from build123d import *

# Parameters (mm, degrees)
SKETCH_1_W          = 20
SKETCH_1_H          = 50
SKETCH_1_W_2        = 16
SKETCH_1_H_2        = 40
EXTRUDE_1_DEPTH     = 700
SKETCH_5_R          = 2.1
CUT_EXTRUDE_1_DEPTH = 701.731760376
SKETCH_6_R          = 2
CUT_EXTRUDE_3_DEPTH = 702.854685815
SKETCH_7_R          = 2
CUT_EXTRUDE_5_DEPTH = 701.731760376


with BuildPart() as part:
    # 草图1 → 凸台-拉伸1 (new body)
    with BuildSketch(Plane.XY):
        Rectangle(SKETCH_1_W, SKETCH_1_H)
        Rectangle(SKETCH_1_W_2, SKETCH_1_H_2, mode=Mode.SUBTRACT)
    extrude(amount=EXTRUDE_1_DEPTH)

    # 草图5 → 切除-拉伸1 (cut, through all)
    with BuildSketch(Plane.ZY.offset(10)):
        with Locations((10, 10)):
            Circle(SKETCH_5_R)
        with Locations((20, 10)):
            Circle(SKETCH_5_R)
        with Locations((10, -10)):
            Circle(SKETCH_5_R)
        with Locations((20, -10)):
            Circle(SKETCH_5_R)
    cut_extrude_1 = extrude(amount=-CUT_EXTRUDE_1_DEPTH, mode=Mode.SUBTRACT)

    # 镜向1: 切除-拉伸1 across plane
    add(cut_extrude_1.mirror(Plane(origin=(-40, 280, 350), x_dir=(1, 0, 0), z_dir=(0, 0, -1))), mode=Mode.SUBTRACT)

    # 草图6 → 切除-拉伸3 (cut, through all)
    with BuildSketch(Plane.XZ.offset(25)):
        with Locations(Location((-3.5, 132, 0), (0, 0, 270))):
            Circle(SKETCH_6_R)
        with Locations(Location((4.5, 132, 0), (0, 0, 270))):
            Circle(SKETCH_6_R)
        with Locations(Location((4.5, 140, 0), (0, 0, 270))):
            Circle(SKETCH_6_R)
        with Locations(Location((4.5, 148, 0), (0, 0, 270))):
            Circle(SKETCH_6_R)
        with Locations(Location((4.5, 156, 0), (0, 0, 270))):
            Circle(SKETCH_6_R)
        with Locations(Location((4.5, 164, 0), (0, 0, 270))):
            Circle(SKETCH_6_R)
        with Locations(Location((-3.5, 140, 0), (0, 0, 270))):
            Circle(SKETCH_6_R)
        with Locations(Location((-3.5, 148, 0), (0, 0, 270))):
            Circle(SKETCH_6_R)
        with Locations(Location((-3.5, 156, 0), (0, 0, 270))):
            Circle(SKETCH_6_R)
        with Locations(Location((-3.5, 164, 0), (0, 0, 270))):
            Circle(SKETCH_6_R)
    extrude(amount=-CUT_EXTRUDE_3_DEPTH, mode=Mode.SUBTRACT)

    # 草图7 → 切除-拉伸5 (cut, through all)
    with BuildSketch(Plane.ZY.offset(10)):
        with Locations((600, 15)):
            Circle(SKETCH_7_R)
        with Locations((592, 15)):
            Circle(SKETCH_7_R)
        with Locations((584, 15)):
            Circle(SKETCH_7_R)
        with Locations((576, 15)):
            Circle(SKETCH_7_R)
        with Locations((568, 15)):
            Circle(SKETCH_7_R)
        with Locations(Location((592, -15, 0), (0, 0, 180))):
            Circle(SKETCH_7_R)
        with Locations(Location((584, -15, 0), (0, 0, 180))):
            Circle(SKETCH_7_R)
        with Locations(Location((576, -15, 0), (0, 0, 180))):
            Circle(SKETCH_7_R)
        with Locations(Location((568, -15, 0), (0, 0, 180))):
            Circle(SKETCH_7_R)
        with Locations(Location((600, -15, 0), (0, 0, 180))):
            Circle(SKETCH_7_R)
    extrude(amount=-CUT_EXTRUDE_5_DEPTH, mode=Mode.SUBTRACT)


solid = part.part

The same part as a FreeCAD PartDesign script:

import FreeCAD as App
import Part
import Sketcher
Q = App.Units.Quantity

doc = App.newDocument("Part")
params = doc.addObject("Spreadsheet::Sheet", "Params")
for row, (alias, value) in enumerate([
    ("sketch1_width", "20 mm"),
    ("sketch1_width2", "16 mm"),
    ("sketch1_height", "50 mm"),
    ("sketch1_height2", "40 mm"),
    ("pad1_length", "700 mm"),
    ("sketch2_diameter", "4.2 mm"),
    ("sketch3_diameter", "4 mm"),
    ("sketch4_diameter", "4 mm"),
], start=1):
    params.set(f"A{row}", alias)
    params.set(f"B{row}", "=" + value)
    params.setAlias(f"B{row}", alias)

body = doc.addObject("PartDesign::Body", "Body")

# Sketch on XY plane
sketch1 = body.newObject("Sketcher::SketchObject", "Sketch")
sketch1.AttachmentSupport = (doc.getObject("XY_Plane"), [""])
sketch1.MapMode = "FlatFace"
sketch1.addGeometry([
    Part.LineSegment(App.Vector(-10, 25, 0), App.Vector(-10, -25, 0)),  # 0
    Part.LineSegment(App.Vector(-10, -25, 0), App.Vector(10, -25, 0)),  # 1
    Part.LineSegment(App.Vector(10, -25, 0), App.Vector(10, 25, 0)),  # 2
    Part.LineSegment(App.Vector(10, 25, 0), App.Vector(-10, 25, 0)),  # 3
    Part.LineSegment(App.Vector(8, -20, 0), App.Vector(-8, -20, 0)),  # 4
    Part.LineSegment(App.Vector(-8, -20, 0), App.Vector(-8, 20, 0)),  # 5
    Part.LineSegment(App.Vector(-8, 20, 0), App.Vector(8, 20, 0)),  # 6
    Part.LineSegment(App.Vector(8, 20, 0), App.Vector(8, -20, 0)),  # 7
], False)
sketch1.addConstraint([
    Sketcher.Constraint("Coincident", 0, 2, 1, 1),
    Sketcher.Constraint("Coincident", 1, 2, 2, 1),
    Sketcher.Constraint("Coincident", 2, 2, 3, 1),
    Sketcher.Constraint("Coincident", 3, 2, 0, 1),
    Sketcher.Constraint("Coincident", 4, 2, 5, 1),
    Sketcher.Constraint("Coincident", 5, 2, 6, 1),
    Sketcher.Constraint("Coincident", 6, 2, 7, 1),
    Sketcher.Constraint("Coincident", 7, 2, 4, 1),
    Sketcher.Constraint("Vertical", 0),
    Sketcher.Constraint("Horizontal", 1),
    Sketcher.Constraint("Vertical", 2),
    Sketcher.Constraint("Horizontal", 3),
    Sketcher.Constraint("Horizontal", 4),
    Sketcher.Constraint("Vertical", 5),
    Sketcher.Constraint("Horizontal", 6),
    Sketcher.Constraint("Vertical", 7),
    Sketcher.Constraint("Symmetric", 0, 2, 2, 2, -1, 1),
    Sketcher.Constraint("Symmetric", 4, 2, 6, 2, -1, 1),
    Sketcher.Constraint("DistanceX", 1, 1, 1, 2, Q("20 mm")),
    Sketcher.Constraint("DistanceX", 4, 2, 4, 1, Q("16 mm")),
    Sketcher.Constraint("DistanceY", 0, 2, 0, 1, Q("50 mm")),
    Sketcher.Constraint("DistanceY", 5, 1, 5, 2, Q("40 mm")),
])
sketch1.setExpression("Constraints[18]", "Params.sketch1_width")
sketch1.setExpression("Constraints[19]", "Params.sketch1_width2")
sketch1.setExpression("Constraints[20]", "Params.sketch1_height")
sketch1.setExpression("Constraints[21]", "Params.sketch1_height2")
pad1 = body.newObject("PartDesign::Pad", "Pad")
pad1.Profile = sketch1
pad1.setExpression("Length", "Params.pad1_length")

# Sketch on YZ plane
sketch2 = body.newObject("Sketcher::SketchObject", "Sketch001")
sketch2.AttachmentSupport = (doc.getObject("YZ_Plane"), [""])
sketch2.MapMode = "FlatFace"
sketch2.AttachmentOffset = App.Placement(App.Vector(0, 0, -10), App.Rotation())
sketch2.addGeometry([
    Part.Circle(App.Vector(10, 10, 0), App.Vector(0, 0, 1), 2.1),
    Part.Circle(App.Vector(10, 20, 0), App.Vector(0, 0, 1), 2.1),
    Part.Circle(App.Vector(-10, 10, 0), App.Vector(0, 0, 1), 2.1),
    Part.Circle(App.Vector(-10, 20, 0), App.Vector(0, 0, 1), 2.1),
], False)
sketch2.addConstraint([
    Sketcher.Constraint("Equal", 0, 1),
    Sketcher.Constraint("Equal", 1, 2),
    Sketcher.Constraint("Equal", 2, 3),
    Sketcher.Constraint("Symmetric", 0, 3, 2, 3, -2),
    Sketcher.Constraint("Symmetric", 1, 3, 3, 3, -2),
    Sketcher.Constraint("Vertical", 0, 3, 1, 3),
    Sketcher.Constraint("Diameter", 0, Q("4.2 mm")),
    Sketcher.Constraint("DistanceX", -1, 1, 0, 3, Q("10 mm")),
    Sketcher.Constraint("DistanceY", -1, 1, 0, 3, Q("10 mm")),
    Sketcher.Constraint("DistanceY", -1, 1, 1, 3, Q("20 mm")),
])
sketch2.setExpression("Constraints[6]", "Params.sketch2_diameter")
pocket1 = body.newObject("PartDesign::Pocket", "Pocket")
pocket1.Profile = sketch2
pocket1.Type = "ThroughAll"
pocket1.Reversed = True
doc.recompute()

datumplane = body.newObject("PartDesign::Plane", "DatumPlane")
datumplane.AttachmentSupport = (doc.getObject("XY_Plane"), [""])
datumplane.MapMode = "FlatFace"
datumplane.AttachmentOffset = App.Placement(App.Vector(0, 0, 350), App.Rotation())
mirrored = body.newObject("PartDesign::Mirrored", "Mirrored")
mirrored.Originals = [pocket1]
mirrored.MirrorPlane = (datumplane, [""])
body.Tip = mirrored

# Sketch on XZ plane
sketch3 = body.newObject("Sketcher::SketchObject", "Sketch002")
sketch3.AttachmentSupport = (doc.getObject("XZ_Plane"), [""])
sketch3.MapMode = "FlatFace"
sketch3.AttachmentOffset = App.Placement(App.Vector(0, 0, 25), App.Rotation())
sketch3.addGeometry([
    Part.Circle(App.Vector(-3.5, 132, 0), App.Vector(0, 0, 1), 2),  # 0
    Part.Circle(App.Vector(4.5, 132, 0), App.Vector(0, 0, 1), 2),  # 1
    Part.Circle(App.Vector(4.5, 140, 0), App.Vector(0, 0, 1), 2),  # 2
    Part.Circle(App.Vector(4.5, 148, 0), App.Vector(0, 0, 1), 2),  # 3
    Part.Circle(App.Vector(4.5, 156, 0), App.Vector(0, 0, 1), 2),  # 4
    Part.Circle(App.Vector(4.5, 164, 0), App.Vector(0, 0, 1), 2),  # 5
    Part.Circle(App.Vector(-3.5, 140, 0), App.Vector(0, 0, 1), 2),  # 6
    Part.Circle(App.Vector(-3.5, 148, 0), App.Vector(0, 0, 1), 2),  # 7
    Part.Circle(App.Vector(-3.5, 156, 0), App.Vector(0, 0, 1), 2),  # 8
    Part.Circle(App.Vector(-3.5, 164, 0), App.Vector(0, 0, 1), 2),  # 9
], False)
sketch3.addConstraint([
    Sketcher.Constraint("Equal", 0, 1),
    Sketcher.Constraint("Equal", 1, 2),
    Sketcher.Constraint("Equal", 2, 3),
    Sketcher.Constraint("Equal", 3, 4),
    Sketcher.Constraint("Equal", 4, 5),
    Sketcher.Constraint("Equal", 5, 6),
    Sketcher.Constraint("Equal", 6, 7),
    Sketcher.Constraint("Equal", 7, 8),
    Sketcher.Constraint("Equal", 8, 9),
    Sketcher.Constraint("Horizontal", 0, 3, 1, 3),
    Sketcher.Constraint("Horizontal", 2, 3, 6, 3),
    Sketcher.Constraint("Horizontal", 3, 3, 7, 3),
    Sketcher.Constraint("Horizontal", 4, 3, 8, 3),
    Sketcher.Constraint("Horizontal", 5, 3, 9, 3),
    Sketcher.Constraint("Vertical", 1, 3, 2, 3),
    Sketcher.Constraint("Vertical", 2, 3, 3, 3),
    Sketcher.Constraint("Vertical", 3, 3, 4, 3),
    Sketcher.Constraint("Vertical", 4, 3, 5, 3),
    Sketcher.Constraint("Vertical", 0, 3, 6, 3),
    Sketcher.Constraint("Vertical", 6, 3, 7, 3),
    Sketcher.Constraint("Vertical", 7, 3, 8, 3),
    Sketcher.Constraint("Vertical", 8, 3, 9, 3),
    Sketcher.Constraint("Diameter", 0, Q("4 mm")),
    Sketcher.Constraint("DistanceY", -1, 1, 0, 3, Q("132 mm")),
    Sketcher.Constraint("DistanceY", -1, 1, 2, 3, Q("140 mm")),
    Sketcher.Constraint("DistanceY", -1, 1, 3, 3, Q("148 mm")),
    Sketcher.Constraint("DistanceY", -1, 1, 4, 3, Q("156 mm")),
    Sketcher.Constraint("DistanceY", -1, 1, 5, 3, Q("164 mm")),
    Sketcher.Constraint("DistanceX", 0, 3, 1, 3, Q("8 mm")),
    Sketcher.Constraint("DistanceX", 0, 3, -1, 1, Q("3.5 mm")),
])
sketch3.setExpression("Constraints[22]", "Params.sketch3_diameter")
pocket2 = body.newObject("PartDesign::Pocket", "Pocket001")
pocket2.Profile = sketch3
pocket2.Type = "ThroughAll"

# Sketch on YZ plane
sketch4 = body.newObject("Sketcher::SketchObject", "Sketch003")
sketch4.AttachmentSupport = (doc.getObject("YZ_Plane"), [""])
sketch4.MapMode = "FlatFace"
sketch4.AttachmentOffset = App.Placement(App.Vector(0, 0, -10), App.Rotation())
sketch4.addGeometry([
    Part.Circle(App.Vector(15, 600, 0), App.Vector(0, 0, 1), 2),  # 0
    Part.Circle(App.Vector(15, 592, 0), App.Vector(0, 0, 1), 2),  # 1
    Part.Circle(App.Vector(15, 584, 0), App.Vector(0, 0, 1), 2),  # 2
    Part.Circle(App.Vector(15, 576, 0), App.Vector(0, 0, 1), 2),  # 3
    Part.Circle(App.Vector(15, 568, 0), App.Vector(0, 0, 1), 2),  # 4
    Part.Circle(App.Vector(-15, 592, 0), App.Vector(0, 0, 1), 2),  # 5
    Part.Circle(App.Vector(-15, 584, 0), App.Vector(0, 0, 1), 2),  # 6
    Part.Circle(App.Vector(-15, 576, 0), App.Vector(0, 0, 1), 2),  # 7
    Part.Circle(App.Vector(-15, 568, 0), App.Vector(0, 0, 1), 2),  # 8
    Part.Circle(App.Vector(-15, 600, 0), App.Vector(0, 0, 1), 2),  # 9
], False)
sketch4.addConstraint([
    Sketcher.Constraint("Equal", 0, 1),
    Sketcher.Constraint("Equal", 1, 2),
    Sketcher.Constraint("Equal", 2, 3),
    Sketcher.Constraint("Equal", 3, 4),
    Sketcher.Constraint("Equal", 4, 5),
    Sketcher.Constraint("Equal", 5, 6),
    Sketcher.Constraint("Equal", 6, 7),
    Sketcher.Constraint("Equal", 7, 8),
    Sketcher.Constraint("Equal", 8, 9),
    Sketcher.Constraint("Symmetric", 1, 3, 5, 3, -2),
    Sketcher.Constraint("Symmetric", 2, 3, 6, 3, -2),
    Sketcher.Constraint("Symmetric", 3, 3, 7, 3, -2),
    Sketcher.Constraint("Symmetric", 4, 3, 8, 3, -2),
    Sketcher.Constraint("Symmetric", 0, 3, 9, 3, -2),
    Sketcher.Constraint("Vertical", 0, 3, 1, 3),
    Sketcher.Constraint("Vertical", 1, 3, 2, 3),
    Sketcher.Constraint("Vertical", 2, 3, 3, 3),
    Sketcher.Constraint("Vertical", 3, 3, 4, 3),
    Sketcher.Constraint("Diameter", 0, Q("4 mm")),
    Sketcher.Constraint("DistanceX", -1, 1, 0, 3, Q("15 mm")),
    Sketcher.Constraint("DistanceY", -1, 1, 0, 3, Q("600 mm")),
    Sketcher.Constraint("DistanceY", -1, 1, 1, 3, Q("592 mm")),
    Sketcher.Constraint("DistanceY", -1, 1, 2, 3, Q("584 mm")),
    Sketcher.Constraint("DistanceY", -1, 1, 3, 3, Q("576 mm")),
    Sketcher.Constraint("DistanceY", -1, 1, 4, 3, Q("568 mm")),
])
sketch4.setExpression("Constraints[18]", "Params.sketch4_diameter")
pocket3 = body.newObject("PartDesign::Pocket", "Pocket002")
pocket3.Profile = sketch4
pocket3.Type = "ThroughAll"
pocket3.Reversed = True

doc.recompute()
